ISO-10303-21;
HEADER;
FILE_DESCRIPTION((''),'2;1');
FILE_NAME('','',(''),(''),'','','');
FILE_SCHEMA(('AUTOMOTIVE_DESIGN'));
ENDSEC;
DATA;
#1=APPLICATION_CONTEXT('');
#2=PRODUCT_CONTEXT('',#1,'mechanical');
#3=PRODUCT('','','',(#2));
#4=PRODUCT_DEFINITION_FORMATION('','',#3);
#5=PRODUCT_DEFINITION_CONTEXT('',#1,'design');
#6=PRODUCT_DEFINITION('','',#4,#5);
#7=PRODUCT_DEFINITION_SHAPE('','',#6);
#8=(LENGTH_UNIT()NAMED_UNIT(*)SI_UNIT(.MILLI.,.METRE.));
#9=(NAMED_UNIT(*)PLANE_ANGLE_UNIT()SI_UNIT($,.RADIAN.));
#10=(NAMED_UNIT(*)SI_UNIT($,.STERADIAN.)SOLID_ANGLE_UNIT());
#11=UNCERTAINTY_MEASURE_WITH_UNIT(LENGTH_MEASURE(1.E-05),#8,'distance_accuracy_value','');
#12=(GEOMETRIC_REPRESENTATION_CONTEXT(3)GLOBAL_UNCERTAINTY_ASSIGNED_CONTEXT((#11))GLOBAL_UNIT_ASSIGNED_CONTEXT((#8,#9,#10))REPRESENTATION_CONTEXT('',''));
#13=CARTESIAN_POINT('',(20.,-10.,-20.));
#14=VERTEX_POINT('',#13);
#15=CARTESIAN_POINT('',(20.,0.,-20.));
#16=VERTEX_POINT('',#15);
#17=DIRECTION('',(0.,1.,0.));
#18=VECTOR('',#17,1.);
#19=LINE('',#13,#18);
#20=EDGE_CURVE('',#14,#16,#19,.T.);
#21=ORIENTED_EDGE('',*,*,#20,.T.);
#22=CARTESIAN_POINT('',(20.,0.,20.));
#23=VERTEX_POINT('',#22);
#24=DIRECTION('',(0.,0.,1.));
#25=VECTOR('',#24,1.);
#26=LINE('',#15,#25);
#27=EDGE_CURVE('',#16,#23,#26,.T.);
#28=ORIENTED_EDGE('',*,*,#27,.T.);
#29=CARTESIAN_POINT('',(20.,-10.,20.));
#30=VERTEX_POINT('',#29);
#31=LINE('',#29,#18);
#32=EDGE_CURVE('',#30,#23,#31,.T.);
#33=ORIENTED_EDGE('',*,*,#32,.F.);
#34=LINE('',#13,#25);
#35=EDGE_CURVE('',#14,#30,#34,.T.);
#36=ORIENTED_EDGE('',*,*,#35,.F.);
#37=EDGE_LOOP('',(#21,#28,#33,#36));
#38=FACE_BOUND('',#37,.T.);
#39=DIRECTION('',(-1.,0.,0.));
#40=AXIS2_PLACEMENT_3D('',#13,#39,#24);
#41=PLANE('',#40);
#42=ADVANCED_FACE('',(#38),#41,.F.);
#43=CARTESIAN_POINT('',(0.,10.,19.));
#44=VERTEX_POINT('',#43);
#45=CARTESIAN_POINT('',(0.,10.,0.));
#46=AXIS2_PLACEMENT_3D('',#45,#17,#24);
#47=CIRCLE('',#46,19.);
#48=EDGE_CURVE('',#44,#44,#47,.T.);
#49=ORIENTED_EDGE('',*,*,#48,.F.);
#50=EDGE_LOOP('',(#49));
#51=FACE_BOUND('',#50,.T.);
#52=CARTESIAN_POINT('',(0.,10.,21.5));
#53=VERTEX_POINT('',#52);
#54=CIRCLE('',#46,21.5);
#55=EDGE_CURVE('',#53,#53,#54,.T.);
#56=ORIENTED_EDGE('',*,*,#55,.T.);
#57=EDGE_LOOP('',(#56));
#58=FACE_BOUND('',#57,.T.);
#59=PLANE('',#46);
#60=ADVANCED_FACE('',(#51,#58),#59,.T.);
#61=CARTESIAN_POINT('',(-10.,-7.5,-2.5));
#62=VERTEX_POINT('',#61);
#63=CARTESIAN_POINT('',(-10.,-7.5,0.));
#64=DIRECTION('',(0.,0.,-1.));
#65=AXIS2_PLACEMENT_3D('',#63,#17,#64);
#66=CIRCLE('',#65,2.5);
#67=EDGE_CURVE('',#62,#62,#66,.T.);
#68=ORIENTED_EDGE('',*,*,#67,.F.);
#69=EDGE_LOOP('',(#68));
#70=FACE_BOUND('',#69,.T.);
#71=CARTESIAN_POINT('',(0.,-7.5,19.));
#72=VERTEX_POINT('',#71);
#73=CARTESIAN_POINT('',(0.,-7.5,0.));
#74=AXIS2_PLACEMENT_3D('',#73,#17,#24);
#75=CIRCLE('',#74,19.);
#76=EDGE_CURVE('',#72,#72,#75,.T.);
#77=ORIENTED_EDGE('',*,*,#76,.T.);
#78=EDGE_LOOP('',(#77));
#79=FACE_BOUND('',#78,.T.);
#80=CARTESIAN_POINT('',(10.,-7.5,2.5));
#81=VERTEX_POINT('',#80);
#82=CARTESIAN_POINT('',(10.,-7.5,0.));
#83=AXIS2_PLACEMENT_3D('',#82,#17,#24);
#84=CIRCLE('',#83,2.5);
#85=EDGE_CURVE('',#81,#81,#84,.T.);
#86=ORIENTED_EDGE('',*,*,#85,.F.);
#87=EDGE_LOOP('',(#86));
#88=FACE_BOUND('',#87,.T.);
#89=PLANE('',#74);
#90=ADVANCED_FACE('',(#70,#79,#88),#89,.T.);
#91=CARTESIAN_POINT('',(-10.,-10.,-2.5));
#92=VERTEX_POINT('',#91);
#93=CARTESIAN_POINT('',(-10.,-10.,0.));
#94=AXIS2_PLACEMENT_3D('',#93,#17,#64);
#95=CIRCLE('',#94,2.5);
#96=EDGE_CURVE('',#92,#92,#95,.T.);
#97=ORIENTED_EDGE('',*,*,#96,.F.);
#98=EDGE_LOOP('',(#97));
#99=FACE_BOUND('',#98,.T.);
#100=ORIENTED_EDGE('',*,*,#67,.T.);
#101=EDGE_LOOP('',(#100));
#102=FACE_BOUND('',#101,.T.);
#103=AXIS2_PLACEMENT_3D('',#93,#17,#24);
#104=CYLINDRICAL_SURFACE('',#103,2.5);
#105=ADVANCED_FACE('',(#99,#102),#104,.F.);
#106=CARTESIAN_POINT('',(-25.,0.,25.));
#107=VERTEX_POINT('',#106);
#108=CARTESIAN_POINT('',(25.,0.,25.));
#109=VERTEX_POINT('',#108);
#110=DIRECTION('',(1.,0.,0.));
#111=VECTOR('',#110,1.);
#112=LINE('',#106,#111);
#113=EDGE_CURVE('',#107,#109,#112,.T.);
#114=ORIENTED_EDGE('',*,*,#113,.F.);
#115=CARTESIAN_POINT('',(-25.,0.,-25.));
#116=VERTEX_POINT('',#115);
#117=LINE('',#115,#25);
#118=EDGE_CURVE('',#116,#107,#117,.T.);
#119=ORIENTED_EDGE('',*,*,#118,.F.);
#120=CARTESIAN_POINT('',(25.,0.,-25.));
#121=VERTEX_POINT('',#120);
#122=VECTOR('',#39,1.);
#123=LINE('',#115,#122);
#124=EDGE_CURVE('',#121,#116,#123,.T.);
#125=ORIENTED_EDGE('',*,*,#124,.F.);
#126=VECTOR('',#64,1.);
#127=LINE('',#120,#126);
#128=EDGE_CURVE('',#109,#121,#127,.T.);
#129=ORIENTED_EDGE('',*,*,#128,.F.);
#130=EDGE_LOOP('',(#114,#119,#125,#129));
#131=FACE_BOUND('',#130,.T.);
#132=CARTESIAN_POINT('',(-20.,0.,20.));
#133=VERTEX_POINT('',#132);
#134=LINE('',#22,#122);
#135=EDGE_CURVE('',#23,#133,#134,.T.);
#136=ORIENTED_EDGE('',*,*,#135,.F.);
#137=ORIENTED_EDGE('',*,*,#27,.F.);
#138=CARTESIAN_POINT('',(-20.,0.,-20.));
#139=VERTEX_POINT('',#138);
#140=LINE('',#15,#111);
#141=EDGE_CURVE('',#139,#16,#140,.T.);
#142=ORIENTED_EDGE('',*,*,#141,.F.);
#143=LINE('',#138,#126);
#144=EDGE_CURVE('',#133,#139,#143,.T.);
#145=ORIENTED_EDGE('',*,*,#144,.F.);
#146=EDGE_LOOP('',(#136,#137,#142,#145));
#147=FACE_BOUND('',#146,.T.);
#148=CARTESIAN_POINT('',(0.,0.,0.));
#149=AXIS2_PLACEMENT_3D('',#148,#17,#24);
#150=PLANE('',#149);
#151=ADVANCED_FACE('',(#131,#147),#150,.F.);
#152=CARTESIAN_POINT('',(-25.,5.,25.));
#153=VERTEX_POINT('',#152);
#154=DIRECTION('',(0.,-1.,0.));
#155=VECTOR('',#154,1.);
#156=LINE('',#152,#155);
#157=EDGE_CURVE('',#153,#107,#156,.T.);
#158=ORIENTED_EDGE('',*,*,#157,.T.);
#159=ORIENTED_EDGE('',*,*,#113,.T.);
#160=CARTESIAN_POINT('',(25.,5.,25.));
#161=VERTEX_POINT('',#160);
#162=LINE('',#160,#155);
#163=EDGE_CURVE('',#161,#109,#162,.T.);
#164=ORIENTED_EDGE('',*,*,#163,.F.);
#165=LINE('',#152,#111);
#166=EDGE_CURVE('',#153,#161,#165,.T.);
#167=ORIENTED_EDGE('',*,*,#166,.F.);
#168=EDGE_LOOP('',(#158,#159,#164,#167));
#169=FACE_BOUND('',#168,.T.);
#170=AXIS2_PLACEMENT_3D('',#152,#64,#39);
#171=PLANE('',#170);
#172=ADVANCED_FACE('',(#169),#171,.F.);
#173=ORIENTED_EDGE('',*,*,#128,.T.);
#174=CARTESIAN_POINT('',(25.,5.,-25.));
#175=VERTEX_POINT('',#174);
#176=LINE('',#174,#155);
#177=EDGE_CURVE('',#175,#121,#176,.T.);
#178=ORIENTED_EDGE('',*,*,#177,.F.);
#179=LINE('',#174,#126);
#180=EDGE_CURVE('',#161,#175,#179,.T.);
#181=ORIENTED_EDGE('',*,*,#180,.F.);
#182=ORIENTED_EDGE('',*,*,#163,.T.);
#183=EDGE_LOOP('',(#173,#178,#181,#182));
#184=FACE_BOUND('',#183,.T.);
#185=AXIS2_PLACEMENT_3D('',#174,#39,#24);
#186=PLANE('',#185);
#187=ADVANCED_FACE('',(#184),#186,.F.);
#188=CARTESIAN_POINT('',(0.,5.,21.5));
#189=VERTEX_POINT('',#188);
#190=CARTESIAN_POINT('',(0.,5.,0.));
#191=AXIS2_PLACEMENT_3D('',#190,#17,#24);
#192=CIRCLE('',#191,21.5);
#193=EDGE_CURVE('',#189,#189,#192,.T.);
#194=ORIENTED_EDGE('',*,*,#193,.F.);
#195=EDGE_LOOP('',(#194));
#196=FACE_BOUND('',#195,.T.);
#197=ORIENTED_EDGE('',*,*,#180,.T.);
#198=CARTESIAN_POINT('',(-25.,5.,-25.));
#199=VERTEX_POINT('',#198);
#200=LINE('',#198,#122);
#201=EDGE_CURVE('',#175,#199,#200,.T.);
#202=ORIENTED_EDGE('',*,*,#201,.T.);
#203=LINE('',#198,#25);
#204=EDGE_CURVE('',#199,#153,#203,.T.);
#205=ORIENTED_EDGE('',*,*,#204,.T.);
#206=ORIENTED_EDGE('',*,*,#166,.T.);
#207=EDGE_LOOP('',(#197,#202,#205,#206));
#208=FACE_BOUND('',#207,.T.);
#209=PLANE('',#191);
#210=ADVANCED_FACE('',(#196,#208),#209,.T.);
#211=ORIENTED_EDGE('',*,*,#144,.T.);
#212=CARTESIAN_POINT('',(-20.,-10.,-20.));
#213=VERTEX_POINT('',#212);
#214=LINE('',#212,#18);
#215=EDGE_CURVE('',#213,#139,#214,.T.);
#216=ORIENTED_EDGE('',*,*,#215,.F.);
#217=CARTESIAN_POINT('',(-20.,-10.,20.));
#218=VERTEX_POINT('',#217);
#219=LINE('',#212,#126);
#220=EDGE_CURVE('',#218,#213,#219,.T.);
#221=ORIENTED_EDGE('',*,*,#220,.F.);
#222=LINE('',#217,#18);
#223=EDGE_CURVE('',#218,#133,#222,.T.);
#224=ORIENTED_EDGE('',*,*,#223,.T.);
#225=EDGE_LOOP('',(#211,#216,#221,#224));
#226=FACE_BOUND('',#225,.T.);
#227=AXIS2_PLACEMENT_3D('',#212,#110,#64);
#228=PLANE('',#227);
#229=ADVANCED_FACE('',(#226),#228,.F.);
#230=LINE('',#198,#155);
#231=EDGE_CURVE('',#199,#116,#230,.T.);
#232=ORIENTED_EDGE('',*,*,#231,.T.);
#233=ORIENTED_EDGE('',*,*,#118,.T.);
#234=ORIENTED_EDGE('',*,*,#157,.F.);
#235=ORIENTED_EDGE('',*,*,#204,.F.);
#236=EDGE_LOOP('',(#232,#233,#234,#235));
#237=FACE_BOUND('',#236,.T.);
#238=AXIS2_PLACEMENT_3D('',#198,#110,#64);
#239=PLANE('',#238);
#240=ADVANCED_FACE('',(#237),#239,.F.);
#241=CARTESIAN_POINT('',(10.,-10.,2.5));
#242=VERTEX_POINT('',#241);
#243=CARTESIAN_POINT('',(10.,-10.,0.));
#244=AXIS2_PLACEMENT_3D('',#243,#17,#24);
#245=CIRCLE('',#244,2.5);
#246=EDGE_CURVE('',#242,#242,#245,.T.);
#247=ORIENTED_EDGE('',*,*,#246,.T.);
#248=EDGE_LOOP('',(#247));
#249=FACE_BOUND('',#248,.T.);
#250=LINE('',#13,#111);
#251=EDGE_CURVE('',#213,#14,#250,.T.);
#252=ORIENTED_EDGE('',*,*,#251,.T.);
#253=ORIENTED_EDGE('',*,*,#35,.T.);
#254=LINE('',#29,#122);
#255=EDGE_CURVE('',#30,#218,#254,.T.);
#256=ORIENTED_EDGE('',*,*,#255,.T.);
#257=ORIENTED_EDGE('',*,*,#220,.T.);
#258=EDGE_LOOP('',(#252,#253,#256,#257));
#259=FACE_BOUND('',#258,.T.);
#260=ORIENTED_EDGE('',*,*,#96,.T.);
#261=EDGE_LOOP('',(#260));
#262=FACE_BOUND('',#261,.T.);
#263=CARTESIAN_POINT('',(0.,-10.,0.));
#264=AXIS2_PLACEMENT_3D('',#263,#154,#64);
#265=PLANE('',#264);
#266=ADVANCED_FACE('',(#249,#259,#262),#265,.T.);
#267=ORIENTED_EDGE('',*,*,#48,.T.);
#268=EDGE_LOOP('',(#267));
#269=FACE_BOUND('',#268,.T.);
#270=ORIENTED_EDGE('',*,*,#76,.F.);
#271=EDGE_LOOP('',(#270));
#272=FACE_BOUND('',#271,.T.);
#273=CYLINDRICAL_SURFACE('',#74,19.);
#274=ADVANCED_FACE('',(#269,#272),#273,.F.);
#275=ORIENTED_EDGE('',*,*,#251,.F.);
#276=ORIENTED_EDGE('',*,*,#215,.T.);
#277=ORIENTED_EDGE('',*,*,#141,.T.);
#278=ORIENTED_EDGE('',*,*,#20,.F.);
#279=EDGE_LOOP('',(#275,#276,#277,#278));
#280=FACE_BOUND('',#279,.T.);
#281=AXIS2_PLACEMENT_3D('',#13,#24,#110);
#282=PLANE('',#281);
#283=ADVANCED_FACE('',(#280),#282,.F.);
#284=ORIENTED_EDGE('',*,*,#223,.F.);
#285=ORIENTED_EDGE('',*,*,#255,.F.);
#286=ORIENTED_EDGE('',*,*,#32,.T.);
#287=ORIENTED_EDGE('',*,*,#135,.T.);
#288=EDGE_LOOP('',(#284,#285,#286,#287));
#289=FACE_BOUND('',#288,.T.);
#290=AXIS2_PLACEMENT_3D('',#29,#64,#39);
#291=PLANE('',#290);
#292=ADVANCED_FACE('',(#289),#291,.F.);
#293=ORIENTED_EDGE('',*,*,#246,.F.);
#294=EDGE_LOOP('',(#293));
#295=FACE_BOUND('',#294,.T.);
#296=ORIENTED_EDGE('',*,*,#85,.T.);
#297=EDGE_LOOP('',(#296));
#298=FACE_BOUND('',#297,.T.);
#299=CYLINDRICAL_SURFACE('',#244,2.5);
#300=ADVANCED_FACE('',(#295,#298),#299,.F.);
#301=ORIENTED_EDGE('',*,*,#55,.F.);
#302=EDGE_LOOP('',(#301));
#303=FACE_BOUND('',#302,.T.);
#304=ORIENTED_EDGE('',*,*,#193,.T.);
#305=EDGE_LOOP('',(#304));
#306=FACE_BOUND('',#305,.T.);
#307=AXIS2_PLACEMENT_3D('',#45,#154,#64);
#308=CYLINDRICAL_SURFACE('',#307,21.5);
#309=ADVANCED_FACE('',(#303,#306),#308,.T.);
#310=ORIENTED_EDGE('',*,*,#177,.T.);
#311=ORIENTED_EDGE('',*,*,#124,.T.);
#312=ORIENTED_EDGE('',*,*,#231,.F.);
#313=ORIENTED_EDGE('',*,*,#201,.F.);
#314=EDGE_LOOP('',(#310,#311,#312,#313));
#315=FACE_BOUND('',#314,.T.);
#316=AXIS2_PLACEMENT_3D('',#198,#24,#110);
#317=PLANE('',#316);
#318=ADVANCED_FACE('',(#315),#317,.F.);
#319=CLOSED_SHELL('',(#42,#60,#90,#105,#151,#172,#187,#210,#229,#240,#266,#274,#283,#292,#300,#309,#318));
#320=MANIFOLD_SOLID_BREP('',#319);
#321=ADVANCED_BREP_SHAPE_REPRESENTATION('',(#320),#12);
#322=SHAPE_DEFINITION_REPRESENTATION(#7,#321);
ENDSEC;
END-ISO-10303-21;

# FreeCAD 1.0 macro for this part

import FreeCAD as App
import Part
import Sketcher


def add_polygon(sketch, points):
    """Adds a closed chain of lines whose ends are joined by coincident constraints."""
    first, n = sketch.GeometryCount, len(points)
    for a, b in zip(points, points[1:] + points[:1]):
        sketch.addGeometry(Part.LineSegment(App.Vector(*a, 0), App.Vector(*b, 0)), False)
    for i in range(n):
        sketch.addConstraint(Sketcher.Constraint("Coincident", first + i, 2, first + (i + 1) % n, 1))

doc = App.newDocument("Part")
body = doc.addObject("PartDesign::Body", "Body")

sketch1 = doc.addObject("Sketcher::SketchObject", "Sketch")
body.addObject(sketch1)
sketch1.AttachmentSupport = (doc.XZ_Plane, [""])
sketch1.MapMode = "FlatFace"
add_polygon(sketch1, [(-25, -25), (-25, 25), (25, 25), (25, -25)])
sketch1.addConstraint([
    Sketcher.Constraint("Vertical", 0),
    Sketcher.Constraint("Horizontal", 1),
    Sketcher.Constraint("Vertical", 2),
    Sketcher.Constraint("Horizontal", 3),
    Sketcher.Constraint("Symmetric", 0, 2, 2, 2, -1, 1),
    Sketcher.Constraint("Equal", 3, 0),
    Sketcher.Constraint("DistanceX", 1, 1, 1, 2, 50.0),
])
pad1 = doc.addObject("PartDesign::Pad", "Pad")
body.addObject(pad1)
pad1.Profile = sketch1
pad1.Length = 5
pad1.Reversed = True

sketch2 = doc.addObject("Sketcher::SketchObject", "Sketch001")
body.addObject(sketch2)
sketch2.AttachmentSupport = (doc.XZ_Plane, [""])
sketch2.MapMode = "FlatFace"
sketch2.AttachmentOffset = App.Placement(App.Vector(0, 0, -5), App.Rotation())
sketch2.addGeometry(Part.Circle(App.Vector(0, 0, 0), App.Vector(0, 0, 1), 22), False)
sketch2.addConstraint([
    Sketcher.Constraint("Coincident", 0, 3, -1, 1),
    Sketcher.Constraint("Diameter", 0, 43.0),
])
pad2 = doc.addObject("PartDesign::Pad", "Pad001")
body.addObject(pad2)
pad2.Profile = sketch2
pad2.Length = 5
pad2.Reversed = True

sketch3 = doc.addObject("Sketcher::SketchObject", "Sketch002")
body.addObject(sketch3)
sketch3.AttachmentSupport = (doc.XZ_Plane, [""])
sketch3.MapMode = "FlatFace"
add_polygon(sketch3, [(-20, 20), (-20, -20), (20, -20), (20, 20)])
sketch3.addConstraint([
    Sketcher.Constraint("Vertical", 0),
    Sketcher.Constraint("Horizontal", 1),
    Sketcher.Constraint("Vertical", 2),
    Sketcher.Constraint("Horizontal", 3),
    Sketcher.Constraint("Symmetric", 0, 2, 2, 2, -1, 1),
    Sketcher.Constraint("Equal", 3, 0),
    Sketcher.Constraint("DistanceX", 1, 1, 1, 2, 40.0),
])
pad3 = doc.addObject("PartDesign::Pad", "Pad002")
body.addObject(pad3)
pad3.Profile = sketch3
pad3.Length = 10

sketch4 = doc.addObject("Sketcher::SketchObject", "Sketch003")
body.addObject(sketch4)
sketch4.AttachmentSupport = (doc.XZ_Plane, [""])
sketch4.MapMode = "FlatFace"
sketch4.AttachmentOffset = App.Placement(App.Vector(0, 0, -10), App.Rotation())
sketch4.addGeometry(Part.Circle(App.Vector(0, 0, 0), App.Vector(0, 0, 1), 19), False)
sketch4.addConstraint([
    Sketcher.Constraint("Coincident", 0, 3, -1, 1),
    Sketcher.Constraint("Diameter", 0, 38.0),
])
pocket1 = doc.addObject("PartDesign::Pocket", "Pocket")
body.addObject(pocket1)
pocket1.Profile = sketch4
pocket1.Length = 17.5
pocket1.Reversed = True

sketch5 = doc.addObject("Sketcher::SketchObject", "Sketch004")
body.addObject(sketch5)
sketch5.AttachmentSupport = (doc.XZ_Plane, [""])
sketch5.MapMode = "FlatFace"
sketch5.AttachmentOffset = App.Placement(App.Vector(0, 0, 7.5), App.Rotation())
sketch5.addGeometry([
    Part.Circle(App.Vector(10, 0, 0), App.Vector(0, 0, 1), 2.5),
    Part.Circle(App.Vector(-10, 0, 0), App.Vector(0, 0, 1), 2.5),
], False)
sketch5.addConstraint([
    Sketcher.Constraint("Equal", 0, 1),
    Sketcher.Constraint("Symmetric", 0, 3, 1, 3, -1, 1),
    Sketcher.Constraint("PointOnObject", 0, 3, -1),
    Sketcher.Constraint("Diameter", 0, 5.0),
    Sketcher.Constraint("DistanceX", -1, 1, 0, 3, 10.0),
])
pocket2 = doc.addObject("PartDesign::Pocket", "Pocket001")
body.addObject(pocket2)
pocket2.Profile = sketch5
pocket2.Type = "ThroughAll"
pocket2.Reversed = True

doc.recompute()
